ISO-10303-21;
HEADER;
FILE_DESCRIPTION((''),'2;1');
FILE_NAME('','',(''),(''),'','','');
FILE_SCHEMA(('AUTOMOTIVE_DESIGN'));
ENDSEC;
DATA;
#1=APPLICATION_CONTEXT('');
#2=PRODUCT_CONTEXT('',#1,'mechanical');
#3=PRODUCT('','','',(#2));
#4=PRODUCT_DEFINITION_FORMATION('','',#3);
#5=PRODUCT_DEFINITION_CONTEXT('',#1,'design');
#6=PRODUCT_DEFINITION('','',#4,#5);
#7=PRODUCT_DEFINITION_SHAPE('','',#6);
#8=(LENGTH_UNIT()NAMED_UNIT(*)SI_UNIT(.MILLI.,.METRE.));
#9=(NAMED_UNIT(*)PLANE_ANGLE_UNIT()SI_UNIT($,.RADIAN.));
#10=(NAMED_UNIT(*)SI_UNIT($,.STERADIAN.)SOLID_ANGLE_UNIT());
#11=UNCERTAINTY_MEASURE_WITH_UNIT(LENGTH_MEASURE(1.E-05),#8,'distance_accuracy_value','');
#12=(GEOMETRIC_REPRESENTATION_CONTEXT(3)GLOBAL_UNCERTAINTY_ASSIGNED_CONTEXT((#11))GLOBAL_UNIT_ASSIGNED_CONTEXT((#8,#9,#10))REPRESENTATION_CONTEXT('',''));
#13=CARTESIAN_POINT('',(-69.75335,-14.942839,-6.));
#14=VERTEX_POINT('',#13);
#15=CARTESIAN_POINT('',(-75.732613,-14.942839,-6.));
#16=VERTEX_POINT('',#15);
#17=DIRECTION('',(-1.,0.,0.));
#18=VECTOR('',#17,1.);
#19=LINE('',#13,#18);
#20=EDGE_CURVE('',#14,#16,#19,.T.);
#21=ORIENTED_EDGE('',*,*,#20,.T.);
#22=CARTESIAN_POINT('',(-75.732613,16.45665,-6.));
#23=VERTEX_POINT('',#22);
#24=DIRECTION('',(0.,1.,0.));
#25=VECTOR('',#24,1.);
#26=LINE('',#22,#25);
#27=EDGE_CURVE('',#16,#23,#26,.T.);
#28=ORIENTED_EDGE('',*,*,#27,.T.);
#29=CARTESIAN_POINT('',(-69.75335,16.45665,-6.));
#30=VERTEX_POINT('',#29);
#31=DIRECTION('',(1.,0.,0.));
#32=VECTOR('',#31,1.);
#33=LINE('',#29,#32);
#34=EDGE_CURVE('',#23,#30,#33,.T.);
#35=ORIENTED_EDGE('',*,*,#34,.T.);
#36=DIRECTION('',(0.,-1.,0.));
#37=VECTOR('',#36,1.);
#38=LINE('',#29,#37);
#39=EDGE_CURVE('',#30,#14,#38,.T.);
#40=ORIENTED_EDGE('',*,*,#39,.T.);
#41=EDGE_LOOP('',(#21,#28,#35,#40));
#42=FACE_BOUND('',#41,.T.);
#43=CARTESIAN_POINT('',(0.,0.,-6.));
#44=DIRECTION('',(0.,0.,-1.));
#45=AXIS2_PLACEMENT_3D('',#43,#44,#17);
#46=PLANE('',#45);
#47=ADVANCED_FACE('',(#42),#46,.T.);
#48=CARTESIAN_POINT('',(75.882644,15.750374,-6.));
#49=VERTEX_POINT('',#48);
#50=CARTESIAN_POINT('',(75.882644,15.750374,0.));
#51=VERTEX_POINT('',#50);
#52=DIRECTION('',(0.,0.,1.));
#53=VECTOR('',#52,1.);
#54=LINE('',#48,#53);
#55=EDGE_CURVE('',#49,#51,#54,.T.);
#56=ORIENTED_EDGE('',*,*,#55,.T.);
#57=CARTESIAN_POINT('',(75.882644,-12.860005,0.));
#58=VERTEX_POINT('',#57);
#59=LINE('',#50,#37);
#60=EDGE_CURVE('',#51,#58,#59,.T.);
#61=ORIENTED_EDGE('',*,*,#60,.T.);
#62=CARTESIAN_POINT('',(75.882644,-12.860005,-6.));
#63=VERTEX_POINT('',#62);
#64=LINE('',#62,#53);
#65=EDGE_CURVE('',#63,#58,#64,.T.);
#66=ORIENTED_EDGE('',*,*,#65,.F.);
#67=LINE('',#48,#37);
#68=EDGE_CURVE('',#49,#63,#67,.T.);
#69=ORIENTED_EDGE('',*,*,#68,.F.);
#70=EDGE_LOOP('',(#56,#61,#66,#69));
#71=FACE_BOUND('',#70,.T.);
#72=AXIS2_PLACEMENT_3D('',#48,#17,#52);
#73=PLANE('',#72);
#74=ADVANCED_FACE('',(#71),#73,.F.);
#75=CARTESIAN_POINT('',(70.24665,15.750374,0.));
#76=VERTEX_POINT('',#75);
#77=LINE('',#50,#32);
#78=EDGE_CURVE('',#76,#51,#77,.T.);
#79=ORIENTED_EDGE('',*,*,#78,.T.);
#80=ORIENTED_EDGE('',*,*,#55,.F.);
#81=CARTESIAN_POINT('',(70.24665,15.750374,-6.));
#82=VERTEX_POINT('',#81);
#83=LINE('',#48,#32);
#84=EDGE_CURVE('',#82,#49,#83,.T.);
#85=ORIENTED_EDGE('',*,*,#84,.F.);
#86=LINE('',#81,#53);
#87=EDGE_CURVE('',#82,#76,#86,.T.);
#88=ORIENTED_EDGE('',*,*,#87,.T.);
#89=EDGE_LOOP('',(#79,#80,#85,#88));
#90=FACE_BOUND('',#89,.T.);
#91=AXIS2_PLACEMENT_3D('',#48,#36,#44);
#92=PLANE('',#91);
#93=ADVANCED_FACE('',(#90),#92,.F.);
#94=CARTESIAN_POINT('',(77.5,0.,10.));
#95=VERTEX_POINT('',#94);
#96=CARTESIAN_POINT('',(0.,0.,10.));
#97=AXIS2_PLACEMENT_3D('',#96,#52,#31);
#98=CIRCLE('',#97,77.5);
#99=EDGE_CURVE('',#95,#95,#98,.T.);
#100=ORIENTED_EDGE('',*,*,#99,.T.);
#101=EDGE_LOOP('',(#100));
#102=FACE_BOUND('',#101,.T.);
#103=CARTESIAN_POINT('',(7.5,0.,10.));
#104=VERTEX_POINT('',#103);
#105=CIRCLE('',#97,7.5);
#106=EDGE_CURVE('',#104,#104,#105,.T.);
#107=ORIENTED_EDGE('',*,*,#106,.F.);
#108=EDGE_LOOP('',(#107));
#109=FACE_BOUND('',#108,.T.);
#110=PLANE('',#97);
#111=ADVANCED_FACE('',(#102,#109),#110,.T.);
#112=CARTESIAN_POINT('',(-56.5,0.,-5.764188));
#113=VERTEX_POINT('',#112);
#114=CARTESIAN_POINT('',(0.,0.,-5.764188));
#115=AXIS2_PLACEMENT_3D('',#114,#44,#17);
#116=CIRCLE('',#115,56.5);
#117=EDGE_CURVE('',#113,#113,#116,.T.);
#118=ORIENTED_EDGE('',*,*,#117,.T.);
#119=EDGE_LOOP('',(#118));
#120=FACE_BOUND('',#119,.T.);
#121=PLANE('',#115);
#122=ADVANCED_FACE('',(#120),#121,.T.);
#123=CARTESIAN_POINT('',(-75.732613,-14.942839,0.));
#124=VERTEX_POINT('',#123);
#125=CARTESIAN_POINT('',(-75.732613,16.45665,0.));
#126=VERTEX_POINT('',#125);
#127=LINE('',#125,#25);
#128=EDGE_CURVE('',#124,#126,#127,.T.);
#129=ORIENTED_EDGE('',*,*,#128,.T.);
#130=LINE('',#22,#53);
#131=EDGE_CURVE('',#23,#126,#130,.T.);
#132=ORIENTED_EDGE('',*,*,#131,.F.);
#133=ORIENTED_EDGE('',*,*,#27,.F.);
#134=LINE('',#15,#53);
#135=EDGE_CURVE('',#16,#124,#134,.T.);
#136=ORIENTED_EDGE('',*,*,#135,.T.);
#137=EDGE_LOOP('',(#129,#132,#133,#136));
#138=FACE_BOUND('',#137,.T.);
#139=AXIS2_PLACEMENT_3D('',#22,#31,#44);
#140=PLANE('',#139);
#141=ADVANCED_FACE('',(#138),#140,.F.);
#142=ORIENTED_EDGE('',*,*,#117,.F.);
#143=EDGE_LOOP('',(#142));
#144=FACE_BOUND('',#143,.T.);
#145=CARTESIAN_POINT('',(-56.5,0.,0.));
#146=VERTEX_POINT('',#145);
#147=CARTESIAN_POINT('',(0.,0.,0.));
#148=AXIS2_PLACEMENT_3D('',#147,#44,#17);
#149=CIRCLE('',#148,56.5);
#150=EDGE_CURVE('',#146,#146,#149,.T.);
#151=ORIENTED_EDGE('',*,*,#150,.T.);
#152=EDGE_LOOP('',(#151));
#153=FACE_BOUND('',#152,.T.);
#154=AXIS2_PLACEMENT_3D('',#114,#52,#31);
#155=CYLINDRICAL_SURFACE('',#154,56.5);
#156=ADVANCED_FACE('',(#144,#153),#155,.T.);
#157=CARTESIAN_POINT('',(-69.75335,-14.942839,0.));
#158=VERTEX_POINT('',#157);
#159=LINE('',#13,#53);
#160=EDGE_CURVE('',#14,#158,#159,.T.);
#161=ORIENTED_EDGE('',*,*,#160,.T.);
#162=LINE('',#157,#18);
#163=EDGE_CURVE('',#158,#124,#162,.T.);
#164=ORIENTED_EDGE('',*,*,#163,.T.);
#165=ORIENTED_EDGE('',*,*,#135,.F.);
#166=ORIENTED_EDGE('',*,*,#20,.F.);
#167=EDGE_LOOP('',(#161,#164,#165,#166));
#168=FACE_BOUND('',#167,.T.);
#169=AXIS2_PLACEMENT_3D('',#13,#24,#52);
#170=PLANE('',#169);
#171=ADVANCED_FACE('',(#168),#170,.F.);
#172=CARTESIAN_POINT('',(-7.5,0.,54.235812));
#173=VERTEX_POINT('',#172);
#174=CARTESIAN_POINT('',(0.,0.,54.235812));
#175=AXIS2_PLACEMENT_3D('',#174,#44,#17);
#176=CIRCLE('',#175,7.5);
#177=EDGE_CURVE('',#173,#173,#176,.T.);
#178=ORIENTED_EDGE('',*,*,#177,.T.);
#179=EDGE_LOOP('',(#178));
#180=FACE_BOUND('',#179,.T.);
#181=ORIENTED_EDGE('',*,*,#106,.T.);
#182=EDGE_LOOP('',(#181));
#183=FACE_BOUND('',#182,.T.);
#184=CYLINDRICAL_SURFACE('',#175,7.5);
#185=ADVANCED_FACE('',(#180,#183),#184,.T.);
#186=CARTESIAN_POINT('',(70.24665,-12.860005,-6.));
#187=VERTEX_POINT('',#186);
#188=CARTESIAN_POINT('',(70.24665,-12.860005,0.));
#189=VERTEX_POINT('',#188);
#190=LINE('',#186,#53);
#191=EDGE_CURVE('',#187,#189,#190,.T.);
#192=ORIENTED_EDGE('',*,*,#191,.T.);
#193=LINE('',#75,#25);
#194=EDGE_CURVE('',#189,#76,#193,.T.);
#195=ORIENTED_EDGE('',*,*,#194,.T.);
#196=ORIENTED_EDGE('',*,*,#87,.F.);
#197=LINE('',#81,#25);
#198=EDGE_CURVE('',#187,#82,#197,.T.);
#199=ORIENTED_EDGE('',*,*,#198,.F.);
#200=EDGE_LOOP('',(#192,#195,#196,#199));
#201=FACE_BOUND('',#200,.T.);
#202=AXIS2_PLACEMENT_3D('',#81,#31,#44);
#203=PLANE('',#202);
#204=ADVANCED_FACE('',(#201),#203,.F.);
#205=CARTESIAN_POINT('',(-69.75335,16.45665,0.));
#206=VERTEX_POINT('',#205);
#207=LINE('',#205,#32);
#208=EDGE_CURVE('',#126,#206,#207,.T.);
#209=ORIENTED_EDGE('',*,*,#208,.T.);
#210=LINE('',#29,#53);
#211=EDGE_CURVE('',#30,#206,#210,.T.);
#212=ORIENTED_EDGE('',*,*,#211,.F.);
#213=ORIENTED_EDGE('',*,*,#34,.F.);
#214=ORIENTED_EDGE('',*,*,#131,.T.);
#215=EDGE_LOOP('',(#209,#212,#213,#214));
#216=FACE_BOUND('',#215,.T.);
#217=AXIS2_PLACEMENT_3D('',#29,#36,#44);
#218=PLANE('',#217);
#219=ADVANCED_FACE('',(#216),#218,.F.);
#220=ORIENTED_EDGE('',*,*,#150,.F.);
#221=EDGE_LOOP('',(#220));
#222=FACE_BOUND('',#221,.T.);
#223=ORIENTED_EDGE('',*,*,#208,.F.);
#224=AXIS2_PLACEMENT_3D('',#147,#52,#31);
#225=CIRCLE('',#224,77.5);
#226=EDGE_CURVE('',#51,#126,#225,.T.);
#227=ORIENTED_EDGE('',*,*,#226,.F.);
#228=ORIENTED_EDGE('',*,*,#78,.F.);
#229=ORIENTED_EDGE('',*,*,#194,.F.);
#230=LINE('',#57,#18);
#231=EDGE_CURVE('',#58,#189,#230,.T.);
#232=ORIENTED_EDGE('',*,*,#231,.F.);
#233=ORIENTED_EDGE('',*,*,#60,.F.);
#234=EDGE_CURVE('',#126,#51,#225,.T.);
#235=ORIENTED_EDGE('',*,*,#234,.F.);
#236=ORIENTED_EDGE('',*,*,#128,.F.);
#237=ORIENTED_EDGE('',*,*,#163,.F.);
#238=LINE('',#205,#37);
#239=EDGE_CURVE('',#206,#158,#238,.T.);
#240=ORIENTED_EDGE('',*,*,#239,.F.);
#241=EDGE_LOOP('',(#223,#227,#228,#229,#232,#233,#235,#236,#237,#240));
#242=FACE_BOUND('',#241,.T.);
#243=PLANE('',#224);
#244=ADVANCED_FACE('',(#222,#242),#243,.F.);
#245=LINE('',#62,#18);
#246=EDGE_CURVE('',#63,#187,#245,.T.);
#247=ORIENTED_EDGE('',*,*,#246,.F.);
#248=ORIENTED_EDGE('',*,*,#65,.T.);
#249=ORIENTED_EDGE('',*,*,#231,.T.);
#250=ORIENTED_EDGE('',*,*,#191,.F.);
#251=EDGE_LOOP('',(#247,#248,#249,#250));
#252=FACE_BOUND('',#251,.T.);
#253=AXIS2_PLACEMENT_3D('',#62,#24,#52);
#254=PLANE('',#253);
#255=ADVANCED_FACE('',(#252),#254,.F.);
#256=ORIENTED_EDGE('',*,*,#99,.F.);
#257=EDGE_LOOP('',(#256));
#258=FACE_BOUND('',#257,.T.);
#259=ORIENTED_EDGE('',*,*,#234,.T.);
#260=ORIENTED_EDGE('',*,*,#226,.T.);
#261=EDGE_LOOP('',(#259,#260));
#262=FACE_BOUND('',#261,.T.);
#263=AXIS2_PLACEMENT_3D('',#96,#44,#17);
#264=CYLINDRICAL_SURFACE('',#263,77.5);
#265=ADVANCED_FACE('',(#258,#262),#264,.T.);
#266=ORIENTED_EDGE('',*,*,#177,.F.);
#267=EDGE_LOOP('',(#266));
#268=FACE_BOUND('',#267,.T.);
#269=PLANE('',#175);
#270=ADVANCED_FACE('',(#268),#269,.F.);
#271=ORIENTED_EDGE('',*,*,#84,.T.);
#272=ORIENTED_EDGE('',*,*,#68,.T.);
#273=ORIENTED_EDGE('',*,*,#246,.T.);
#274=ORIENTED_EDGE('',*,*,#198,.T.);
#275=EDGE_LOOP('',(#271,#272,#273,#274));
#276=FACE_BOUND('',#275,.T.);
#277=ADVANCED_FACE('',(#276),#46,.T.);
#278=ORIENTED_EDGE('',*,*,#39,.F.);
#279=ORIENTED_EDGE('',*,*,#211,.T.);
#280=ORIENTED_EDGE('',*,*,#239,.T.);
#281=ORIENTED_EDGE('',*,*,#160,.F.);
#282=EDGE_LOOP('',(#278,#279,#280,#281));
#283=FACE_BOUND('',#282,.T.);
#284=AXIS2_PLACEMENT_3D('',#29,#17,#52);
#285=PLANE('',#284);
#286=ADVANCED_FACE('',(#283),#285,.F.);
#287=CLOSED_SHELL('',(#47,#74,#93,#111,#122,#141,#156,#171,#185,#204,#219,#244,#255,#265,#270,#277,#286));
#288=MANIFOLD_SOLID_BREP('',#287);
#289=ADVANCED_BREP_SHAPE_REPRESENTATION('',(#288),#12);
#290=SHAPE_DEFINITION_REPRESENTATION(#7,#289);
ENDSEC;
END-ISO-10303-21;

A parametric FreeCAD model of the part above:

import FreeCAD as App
import Part
import Sketcher
from FreeCAD import Vector


def add_polygon(sketch, points):
    """Adds a closed chain of lines whose ends are joined by coincident constraints."""
    first, n = sketch.GeometryCount, len(points)
    for a, b in zip(points, points[1:] + points[:1]):
        sketch.addGeometry(Part.LineSegment(App.Vector(*a, 0), App.Vector(*b, 0)), False)
    for i in range(n):
        sketch.addConstraint(Sketcher.Constraint("Coincident", first + i, 2, first + (i + 1) % n, 1))

doc = App.newDocument("Part")
body = doc.addObject("PartDesign::Body", "Body")

# Sketch on XY plane
sketch1 = body.newObject("Sketcher::SketchObject", "Sketch")
sketch1.AttachmentSupport = (doc.getObject("XY_Plane"), [""])
sketch1.MapMode = "FlatFace"
sketch1.addGeometry(Part.Circle(Vector(0, 0, 0), Vector(0, 0, 1), 78), False)
sketch1.addConstraint([
    Sketcher.Constraint("Coincident", 0, 3, -1, 1),
    Sketcher.Constraint("Diameter", 0, 155.0),
])
pad1 = body.newObject("PartDesign::Pad", "Pad")
pad1.Profile = sketch1
pad1.Length = 10

# Sketch on XY plane
sketch2 = body.newObject("Sketcher::SketchObject", "Sketch001")
sketch2.AttachmentSupport = (doc.getObject("XY_Plane"), [""])
sketch2.MapMode = "FlatFace"
sketch2.addGeometry(Part.Circle(Vector(0, 0, 0), Vector(0, 0, 1), 56), False)
sketch2.addConstraint([
    Sketcher.Constraint("Coincident", 0, 3, -1, 1),
    Sketcher.Constraint("Diameter", 0, 113.0),
])
pad2 = body.newObject("PartDesign::Pad", "Pad001")
pad2.Profile = sketch2
pad2.Length = 5.764188
pad2.Reversed = True

# Sketch on XY plane
sketch3 = body.newObject("Sketcher::SketchObject", "Sketch002")
sketch3.AttachmentSupport = (doc.getObject("XY_Plane"), [""])
sketch3.MapMode = "FlatFace"
sketch3.AttachmentOffset = App.Placement(Vector(0, 0, -5.764188), App.Rotation())
sketch3.addGeometry(Part.Circle(Vector(0, 0, 0), Vector(0, 0, 1), 8), False)
sketch3.addConstraint([
    Sketcher.Constraint("Coincident", 0, 3, -1, 1),
    Sketcher.Constraint("Diameter", 0, 15.0),
])
pad3 = body.newObject("PartDesign::Pad", "Pad002")
pad3.Profile = sketch3
pad3.Length = 60

# Sketch on XY plane
sketch4 = body.newObject("Sketcher::SketchObject", "Sketch003")
sketch4.AttachmentSupport = (doc.getObject("XY_Plane"), [""])
sketch4.MapMode = "FlatFace"
add_polygon(sketch4, [(76, 16), (76, -13), (70, -13), (70, 16)])  # lines 0-3
add_polygon(sketch4, [(-70, 16), (-70, -15), (-76, -15), (-76, 16)])  # lines 4-7
sketch4.addConstraint([
    Sketcher.Constraint("Vertical", 0),
    Sketcher.Constraint("Horizontal", 1),
    Sketcher.Constraint("Vertical", 2),
    Sketcher.Constraint("Horizontal", 3),
    Sketcher.Constraint("Vertical", 4),
    Sketcher.Constraint("Horizontal", 5),
    Sketcher.Constraint("Vertical", 6),
    Sketcher.Constraint("Horizontal", 7),
    Sketcher.Constraint("DistanceX", 4, 2, 1, 2, 140.0),
    Sketcher.Constraint("DistanceY", 0, 2, 0, 1, 28.610379),
    Sketcher.Constraint("DistanceY", 4, 2, 4, 1, 31.399489),
    Sketcher.Constraint("DistanceX", 1, 2, 1, 1, 5.635995),
    Sketcher.Constraint("DistanceX", 5, 2, 5, 1, 5.979263),
    Sketcher.Constraint("DistanceX", -1, 1, 1, 2, 70.24665),
    Sketcher.Constraint("DistanceY", 4, 2, -1, 1, 14.942839),
    Sketcher.Constraint("DistanceY", 0, 2, -1, 1, 12.860005),
])
pad4 = body.newObject("PartDesign::Pad", "Pad003")
pad4.Profile = sketch4
pad4.Length = 6
pad4.Reversed = True

doc.recompute()
